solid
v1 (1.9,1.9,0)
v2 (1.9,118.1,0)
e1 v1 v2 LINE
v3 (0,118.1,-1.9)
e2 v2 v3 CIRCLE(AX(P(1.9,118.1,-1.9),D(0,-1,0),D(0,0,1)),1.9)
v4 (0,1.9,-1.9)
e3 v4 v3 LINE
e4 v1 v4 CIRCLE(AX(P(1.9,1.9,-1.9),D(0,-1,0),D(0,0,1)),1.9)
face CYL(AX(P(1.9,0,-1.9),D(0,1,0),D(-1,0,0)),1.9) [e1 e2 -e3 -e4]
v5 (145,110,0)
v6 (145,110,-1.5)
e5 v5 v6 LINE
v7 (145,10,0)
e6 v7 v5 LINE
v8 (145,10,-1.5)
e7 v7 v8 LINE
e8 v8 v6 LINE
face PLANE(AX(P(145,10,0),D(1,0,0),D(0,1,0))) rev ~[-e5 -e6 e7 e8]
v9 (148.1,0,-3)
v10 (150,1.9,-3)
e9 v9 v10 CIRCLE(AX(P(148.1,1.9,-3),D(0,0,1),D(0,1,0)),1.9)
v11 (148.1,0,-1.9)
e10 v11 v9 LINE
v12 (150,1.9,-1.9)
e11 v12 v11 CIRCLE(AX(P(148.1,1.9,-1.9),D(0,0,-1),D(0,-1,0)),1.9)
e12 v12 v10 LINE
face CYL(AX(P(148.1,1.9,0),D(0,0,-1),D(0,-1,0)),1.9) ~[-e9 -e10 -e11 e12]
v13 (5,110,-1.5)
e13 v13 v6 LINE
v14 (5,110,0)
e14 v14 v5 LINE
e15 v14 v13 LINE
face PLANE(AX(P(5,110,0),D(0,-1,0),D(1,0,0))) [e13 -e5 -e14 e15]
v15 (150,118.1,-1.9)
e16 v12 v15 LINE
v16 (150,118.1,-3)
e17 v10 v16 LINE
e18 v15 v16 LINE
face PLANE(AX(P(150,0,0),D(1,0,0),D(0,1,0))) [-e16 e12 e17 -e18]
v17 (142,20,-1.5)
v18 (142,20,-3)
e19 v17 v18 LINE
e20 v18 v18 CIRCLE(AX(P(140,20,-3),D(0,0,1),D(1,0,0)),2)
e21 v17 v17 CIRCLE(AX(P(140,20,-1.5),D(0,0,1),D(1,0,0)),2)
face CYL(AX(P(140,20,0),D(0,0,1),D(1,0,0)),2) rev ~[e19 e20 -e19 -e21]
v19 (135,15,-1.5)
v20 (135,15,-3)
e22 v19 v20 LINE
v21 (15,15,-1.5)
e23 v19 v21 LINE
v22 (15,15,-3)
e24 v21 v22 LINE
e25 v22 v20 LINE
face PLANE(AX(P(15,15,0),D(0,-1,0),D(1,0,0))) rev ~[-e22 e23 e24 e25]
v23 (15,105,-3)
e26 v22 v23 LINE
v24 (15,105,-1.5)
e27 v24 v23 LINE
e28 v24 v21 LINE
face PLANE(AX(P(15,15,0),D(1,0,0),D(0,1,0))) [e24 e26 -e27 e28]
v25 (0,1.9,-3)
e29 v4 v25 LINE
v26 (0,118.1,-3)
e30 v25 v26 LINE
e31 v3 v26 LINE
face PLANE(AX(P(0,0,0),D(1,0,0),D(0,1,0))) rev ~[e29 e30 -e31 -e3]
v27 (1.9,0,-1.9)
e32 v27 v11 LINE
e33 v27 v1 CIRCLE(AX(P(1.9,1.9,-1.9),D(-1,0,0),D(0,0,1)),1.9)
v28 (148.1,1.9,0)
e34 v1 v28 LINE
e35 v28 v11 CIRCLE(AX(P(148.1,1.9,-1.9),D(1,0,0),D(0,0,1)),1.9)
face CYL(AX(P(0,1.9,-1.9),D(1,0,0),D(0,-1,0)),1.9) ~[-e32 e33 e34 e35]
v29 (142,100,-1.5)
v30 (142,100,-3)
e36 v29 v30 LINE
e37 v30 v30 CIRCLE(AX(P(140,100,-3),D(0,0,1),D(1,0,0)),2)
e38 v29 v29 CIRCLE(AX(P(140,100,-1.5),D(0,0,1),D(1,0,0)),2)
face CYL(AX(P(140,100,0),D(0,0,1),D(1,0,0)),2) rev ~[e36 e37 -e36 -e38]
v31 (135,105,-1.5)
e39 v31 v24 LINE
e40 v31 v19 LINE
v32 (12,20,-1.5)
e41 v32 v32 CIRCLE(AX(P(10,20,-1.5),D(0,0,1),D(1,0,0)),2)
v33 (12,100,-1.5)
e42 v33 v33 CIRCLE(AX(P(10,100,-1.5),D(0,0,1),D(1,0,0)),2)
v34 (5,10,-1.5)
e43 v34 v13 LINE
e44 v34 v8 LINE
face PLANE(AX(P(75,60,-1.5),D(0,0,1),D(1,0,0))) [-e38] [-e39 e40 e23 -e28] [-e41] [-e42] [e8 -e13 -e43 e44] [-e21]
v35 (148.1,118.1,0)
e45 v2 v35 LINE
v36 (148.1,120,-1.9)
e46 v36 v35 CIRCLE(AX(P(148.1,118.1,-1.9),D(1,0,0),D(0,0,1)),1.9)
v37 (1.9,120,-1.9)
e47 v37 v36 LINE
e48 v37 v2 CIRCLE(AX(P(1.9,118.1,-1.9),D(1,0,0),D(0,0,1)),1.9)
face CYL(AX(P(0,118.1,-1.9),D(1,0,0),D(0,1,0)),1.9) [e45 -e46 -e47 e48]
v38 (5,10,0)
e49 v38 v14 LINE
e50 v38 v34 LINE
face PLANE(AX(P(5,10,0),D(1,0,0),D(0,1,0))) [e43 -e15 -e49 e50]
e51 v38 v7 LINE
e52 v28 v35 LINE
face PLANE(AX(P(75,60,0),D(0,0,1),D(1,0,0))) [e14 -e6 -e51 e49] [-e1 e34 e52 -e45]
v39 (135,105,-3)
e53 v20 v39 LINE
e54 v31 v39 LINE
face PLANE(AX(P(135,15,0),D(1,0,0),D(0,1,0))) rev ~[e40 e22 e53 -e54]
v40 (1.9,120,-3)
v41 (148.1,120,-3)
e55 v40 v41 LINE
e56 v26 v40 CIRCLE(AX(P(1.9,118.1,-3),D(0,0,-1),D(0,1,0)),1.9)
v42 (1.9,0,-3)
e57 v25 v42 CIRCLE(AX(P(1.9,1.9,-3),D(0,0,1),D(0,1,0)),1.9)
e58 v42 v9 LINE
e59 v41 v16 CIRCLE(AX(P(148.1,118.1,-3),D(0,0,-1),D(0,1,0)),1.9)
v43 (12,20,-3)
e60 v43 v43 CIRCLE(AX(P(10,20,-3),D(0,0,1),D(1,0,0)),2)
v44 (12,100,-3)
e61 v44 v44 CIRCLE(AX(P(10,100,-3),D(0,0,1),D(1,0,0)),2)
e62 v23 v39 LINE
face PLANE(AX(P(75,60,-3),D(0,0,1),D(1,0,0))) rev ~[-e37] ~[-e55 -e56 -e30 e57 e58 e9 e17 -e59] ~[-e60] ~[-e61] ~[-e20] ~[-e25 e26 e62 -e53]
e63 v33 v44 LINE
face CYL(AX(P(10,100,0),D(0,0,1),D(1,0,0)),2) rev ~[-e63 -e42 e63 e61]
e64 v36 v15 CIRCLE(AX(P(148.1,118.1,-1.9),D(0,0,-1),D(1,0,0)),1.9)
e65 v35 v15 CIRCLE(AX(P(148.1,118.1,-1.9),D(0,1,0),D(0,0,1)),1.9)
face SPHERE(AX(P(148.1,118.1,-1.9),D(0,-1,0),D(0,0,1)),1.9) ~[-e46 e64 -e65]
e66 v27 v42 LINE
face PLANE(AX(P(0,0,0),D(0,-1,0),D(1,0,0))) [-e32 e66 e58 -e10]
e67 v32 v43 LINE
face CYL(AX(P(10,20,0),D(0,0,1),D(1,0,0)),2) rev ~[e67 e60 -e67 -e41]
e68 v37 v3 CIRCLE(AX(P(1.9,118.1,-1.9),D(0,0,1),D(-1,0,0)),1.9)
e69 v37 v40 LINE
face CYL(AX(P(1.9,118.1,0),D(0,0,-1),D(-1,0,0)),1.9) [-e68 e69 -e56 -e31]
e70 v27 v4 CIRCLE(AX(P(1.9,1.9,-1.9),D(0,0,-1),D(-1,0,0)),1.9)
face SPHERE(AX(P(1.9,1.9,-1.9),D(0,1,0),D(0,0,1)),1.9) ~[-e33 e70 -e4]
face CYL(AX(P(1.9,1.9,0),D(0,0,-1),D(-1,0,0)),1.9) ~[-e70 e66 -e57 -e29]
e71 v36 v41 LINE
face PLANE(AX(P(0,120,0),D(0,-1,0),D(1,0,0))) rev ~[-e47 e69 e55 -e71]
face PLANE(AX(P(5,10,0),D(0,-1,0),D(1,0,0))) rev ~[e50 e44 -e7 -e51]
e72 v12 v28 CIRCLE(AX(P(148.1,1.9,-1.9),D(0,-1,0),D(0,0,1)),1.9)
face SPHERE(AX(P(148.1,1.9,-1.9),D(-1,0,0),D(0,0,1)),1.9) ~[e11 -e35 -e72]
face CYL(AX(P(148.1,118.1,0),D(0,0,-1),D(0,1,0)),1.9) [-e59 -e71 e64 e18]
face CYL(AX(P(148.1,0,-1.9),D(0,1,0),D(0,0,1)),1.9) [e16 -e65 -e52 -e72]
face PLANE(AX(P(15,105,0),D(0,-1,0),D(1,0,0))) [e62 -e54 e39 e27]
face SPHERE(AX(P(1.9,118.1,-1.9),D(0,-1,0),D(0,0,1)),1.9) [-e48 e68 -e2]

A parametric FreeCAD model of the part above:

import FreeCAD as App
import Part
import Sketcher

V = App.Vector
Q = App.Units.Quantity


def edges_at(feature, points):
    """Names of the edges that pass closest to the given points."""
    edges = feature.Shape.Edges
    near = lambda p: min(range(len(edges)), key=lambda i: edges[i].distToShape(Part.Vertex(*p))[0])
    return sorted({f"Edge{near(p) + 1}" for p in points})

doc = App.newDocument("Part")
params = doc.addObject("Spreadsheet::Sheet", "Params")
for row, (alias, value) in enumerate([
    ("sketch1_width", "150 mm"),
    ("sketch1_height", "120 mm"),
    ("pad1_length", "3 mm"),
    ("sketch2_width", "120 mm"),
    ("sketch2_height", "90 mm"),
    ("pocket1_length", "5 mm"),
    ("sketch3_width", "140 mm"),
    ("sketch3_height", "100 mm"),
    ("pocket2_length", "1.5 mm"),
    ("sketch4_diameter", "4 mm"),
    ("pocket3_length", "5 mm"),
    ("sketch5_diameter", "4 mm"),
    ("pocket4_length", "5 mm"),
    ("sketch6_diameter", "4 mm"),
    ("pocket5_length", "5 mm"),
    ("sketch7_diameter", "4 mm"),
    ("pocket6_length", "5 mm"),
    ("fillet_radius", "1.9 mm"),
], start=1):
    params.set(f"A{row}", alias)
    params.set(f"B{row}", "=" + value)
    params.setAlias(f"B{row}", alias)

body = doc.addObject("PartDesign::Body", "Body")

sketch1 = body.newObject("Sketcher::SketchObject", "Sketch")
sketch1.AttachmentSupport = (doc.getObject("XY_Plane"), [""])
sketch1.MapMode = "FlatFace"
sketch1.addGeometry([
    Part.LineSegment(V(0, 120, 0), V(0, 0, 0)),
    Part.LineSegment(V(0, 0, 0), V(150, 0, 0)),
    Part.LineSegment(V(150, 0, 0), V(150, 120, 0)),
    Part.LineSegment(V(150, 120, 0), V(0, 120, 0)),
], False)
sketch1.addConstraint([
    Sketcher.Constraint("Coincident", 0, 2, 1, 1),
    Sketcher.Constraint("Coincident", 1, 2, 2, 1),
    Sketcher.Constraint("Coincident", 2, 2, 3, 1),
    Sketcher.Constraint("Coincident", 3, 2, 0, 1),
    Sketcher.Constraint("Vertical", 0),
    Sketcher.Constraint("Horizontal", 1),
    Sketcher.Constraint("Vertical", 2),
    Sketcher.Constraint("Horizontal", 3),
    Sketcher.Constraint("Coincident", 0, 2, -1, 1),
    Sketcher.Constraint("DistanceX", 1, 1, 1, 2, Q("150 mm")),
    Sketcher.Constraint("DistanceY", 0, 2, 0, 1, Q("120 mm")),
])
sketch1.setExpression("Constraints[9]", "Params.sketch1_width")
sketch1.setExpression("Constraints[10]", "Params.sketch1_height")
pad1 = body.newObject("PartDesign::Pad", "Pad")
pad1.Profile = sketch1
pad1.setExpression("Length", "Params.pad1_length")
pad1.Reversed = True

sketch2 = body.newObject("Sketcher::SketchObject", "Sketch001")
sketch2.AttachmentSupport = (doc.getObject("XY_Plane"), [""])
sketch2.MapMode = "FlatFace"
sketch2.addGeometry([
    Part.LineSegment(V(15, 105, 0), V(15, 15, 0)),
    Part.LineSegment(V(15, 15, 0), V(135, 15, 0)),
    Part.LineSegment(V(135, 15, 0), V(135, 105, 0)),
    Part.LineSegment(V(135, 105, 0), V(15, 105, 0)),
], False)
sketch2.addConstraint([
    Sketcher.Constraint("Coincident", 0, 2, 1, 1),
    Sketcher.Constraint("Coincident", 1, 2, 2, 1),
    Sketcher.Constraint("Coincident", 2, 2, 3, 1),
    Sketcher.Constraint("Coincident", 3, 2, 0, 1),
    Sketcher.Constraint("Vertical", 0),
    Sketcher.Constraint("Horizontal", 1),
    Sketcher.Constraint("Vertical", 2),
    Sketcher.Constraint("Horizontal", 3),
    Sketcher.Constraint("DistanceX", 1, 1, 1, 2, Q("120 mm")),
    Sketcher.Constraint("DistanceY", 0, 2, 0, 1, Q("90 mm")),
    Sketcher.Constraint("DistanceX", -1, 1, 0, 2, Q("15 mm")),
    Sketcher.Constraint("DistanceY", -1, 1, 0, 2, Q("15 mm")),
])
sketch2.setExpression("Constraints[8]", "Params.sketch2_width")
sketch2.setExpression("Constraints[9]", "Params.sketch2_height")
pocket1 = body.newObject("PartDesign::Pocket", "Pocket")
pocket1.Profile = sketch2
pocket1.setExpression("Length", "Params.pocket1_length")

sketch3 = body.newObject("Sketcher::SketchObject", "Sketch002")
sketch3.AttachmentSupport = (doc.getObject("XY_Plane"), [""])
sketch3.MapMode = "FlatFace"
sketch3.addGeometry([
    Part.LineSegment(V(5, 110, 0), V(5, 10, 0)),
    Part.LineSegment(V(5, 10, 0), V(145, 10, 0)),
    Part.LineSegment(V(145, 10, 0), V(145, 110, 0)),
    Part.LineSegment(V(145, 110, 0), V(5, 110, 0)),
], False)
sketch3.addConstraint([
    Sketcher.Constraint("Coincident", 0, 2, 1, 1),
    Sketcher.Constraint("Coincident", 1, 2, 2, 1),
    Sketcher.Constraint("Coincident", 2, 2, 3, 1),
    Sketcher.Constraint("Coincident", 3, 2, 0, 1),
    Sketcher.Constraint("Vertical", 0),
    Sketcher.Constraint("Horizontal", 1),
    Sketcher.Constraint("Vertical", 2),
    Sketcher.Constraint("Horizontal", 3),
    Sketcher.Constraint("DistanceX", 1, 1, 1, 2, Q("140 mm")),
    Sketcher.Constraint("DistanceY", 0, 2, 0, 1, Q("100 mm")),
    Sketcher.Constraint("DistanceX", -1, 1, 0, 2, Q("5 mm")),
    Sketcher.Constraint("DistanceY", -1, 1, 0, 2, Q("10 mm")),
])
sketch3.setExpression("Constraints[8]", "Params.sketch3_width")
sketch3.setExpression("Constraints[9]", "Params.sketch3_height")
pocket2 = body.newObject("PartDesign::Pocket", "Pocket001")
pocket2.Profile = sketch3
pocket2.setExpression("Length", "Params.pocket2_length")

sketch4 = body.newObject("Sketcher::SketchObject", "Sketch003")
sketch4.AttachmentSupport = (doc.getObject("XY_Plane"), [""])
sketch4.MapMode = "FlatFace"
sketch4.addGeometry(Part.Circle(V(10, 20, 0), V(0, 0, 1), 2), False)
sketch4.addConstraint([
    Sketcher.Constraint("Diameter", 0, Q("4 mm")),
    Sketcher.Constraint("DistanceX", -1, 1, 0, 3, Q("10 mm")),
    Sketcher.Constraint("DistanceY", -1, 1, 0, 3, Q("20 mm")),
])
sketch4.setExpression("Constraints[0]", "Params.sketch4_diameter")
pocket3 = body.newObject("PartDesign::Pocket", "Pocket002")
pocket3.Profile = sketch4
pocket3.setExpression("Length", "Params.pocket3_length")

sketch5 = body.newObject("Sketcher::SketchObject", "Sketch004")
sketch5.AttachmentSupport = (doc.getObject("XY_Plane"), [""])
sketch5.MapMode = "FlatFace"
sketch5.addGeometry(Part.Circle(V(10, 100, 0), V(0, 0, 1), 2), False)
sketch5.addConstraint([
    Sketcher.Constraint("Diameter", 0, Q("4 mm")),
    Sketcher.Constraint("DistanceX", -1, 1, 0, 3, Q("10 mm")),
    Sketcher.Constraint("DistanceY", -1, 1, 0, 3, Q("100 mm")),
])
sketch5.setExpression("Constraints[0]", "Params.sketch5_diameter")
pocket4 = body.newObject("PartDesign::Pocket", "Pocket003")
pocket4.Profile = sketch5
pocket4.setExpression("Length", "Params.pocket4_length")

sketch6 = body.newObject("Sketcher::SketchObject", "Sketch005")
sketch6.AttachmentSupport = (doc.getObject("XY_Plane"), [""])
sketch6.MapMode = "FlatFace"
sketch6.addGeometry(Part.Circle(V(140, 20, 0), V(0, 0, 1), 2), False)
sketch6.addConstraint([
    Sketcher.Constraint("Diameter", 0, Q("4 mm")),
    Sketcher.Constraint("DistanceX", -1, 1, 0, 3, Q("140 mm")),
    Sketcher.Constraint("DistanceY", -1, 1, 0, 3, Q("20 mm")),
])
sketch6.setExpression("Constraints[0]", "Params.sketch6_diameter")
pocket5 = body.newObject("PartDesign::Pocket", "Pocket004")
pocket5.Profile = sketch6
pocket5.setExpression("Length", "Params.pocket5_length")

sketch7 = body.newObject("Sketcher::SketchObject", "Sketch006")
sketch7.AttachmentSupport = (doc.getObject("XY_Plane"), [""])
sketch7.MapMode = "FlatFace"
sketch7.addGeometry(Part.Circle(V(140, 100, 0), V(0, 0, 1), 2), False)
sketch7.addConstraint([
    Sketcher.Constraint("Diameter", 0, Q("4 mm")),
    Sketcher.Constraint("DistanceX", -1, 1, 0, 3, Q("140 mm")),
    Sketcher.Constraint("DistanceY", -1, 1, 0, 3, Q("100 mm")),
])
sketch7.setExpression("Constraints[0]", "Params.sketch7_diameter")
pocket6 = body.newObject("PartDesign::Pocket", "Pocket005")
pocket6.Profile = sketch7
pocket6.setExpression("Length", "Params.pocket6_length")
doc.recompute()

fillet = body.newObject("PartDesign::Fillet", "Fillet")
fillet.Base = (pocket6, edges_at(pocket6, [
    (0, 60, 0),
    (75, 0, 0),
    (150, 60, 0),
    (75, 120, 0),
    (0, 0, -1.5),
    (150, 0, -1.5),
    (150, 120, -1.5),
    (0, 120, -1.5),
]))
fillet.setExpression("Radius", "Params.fillet_radius")

doc.recompute()
